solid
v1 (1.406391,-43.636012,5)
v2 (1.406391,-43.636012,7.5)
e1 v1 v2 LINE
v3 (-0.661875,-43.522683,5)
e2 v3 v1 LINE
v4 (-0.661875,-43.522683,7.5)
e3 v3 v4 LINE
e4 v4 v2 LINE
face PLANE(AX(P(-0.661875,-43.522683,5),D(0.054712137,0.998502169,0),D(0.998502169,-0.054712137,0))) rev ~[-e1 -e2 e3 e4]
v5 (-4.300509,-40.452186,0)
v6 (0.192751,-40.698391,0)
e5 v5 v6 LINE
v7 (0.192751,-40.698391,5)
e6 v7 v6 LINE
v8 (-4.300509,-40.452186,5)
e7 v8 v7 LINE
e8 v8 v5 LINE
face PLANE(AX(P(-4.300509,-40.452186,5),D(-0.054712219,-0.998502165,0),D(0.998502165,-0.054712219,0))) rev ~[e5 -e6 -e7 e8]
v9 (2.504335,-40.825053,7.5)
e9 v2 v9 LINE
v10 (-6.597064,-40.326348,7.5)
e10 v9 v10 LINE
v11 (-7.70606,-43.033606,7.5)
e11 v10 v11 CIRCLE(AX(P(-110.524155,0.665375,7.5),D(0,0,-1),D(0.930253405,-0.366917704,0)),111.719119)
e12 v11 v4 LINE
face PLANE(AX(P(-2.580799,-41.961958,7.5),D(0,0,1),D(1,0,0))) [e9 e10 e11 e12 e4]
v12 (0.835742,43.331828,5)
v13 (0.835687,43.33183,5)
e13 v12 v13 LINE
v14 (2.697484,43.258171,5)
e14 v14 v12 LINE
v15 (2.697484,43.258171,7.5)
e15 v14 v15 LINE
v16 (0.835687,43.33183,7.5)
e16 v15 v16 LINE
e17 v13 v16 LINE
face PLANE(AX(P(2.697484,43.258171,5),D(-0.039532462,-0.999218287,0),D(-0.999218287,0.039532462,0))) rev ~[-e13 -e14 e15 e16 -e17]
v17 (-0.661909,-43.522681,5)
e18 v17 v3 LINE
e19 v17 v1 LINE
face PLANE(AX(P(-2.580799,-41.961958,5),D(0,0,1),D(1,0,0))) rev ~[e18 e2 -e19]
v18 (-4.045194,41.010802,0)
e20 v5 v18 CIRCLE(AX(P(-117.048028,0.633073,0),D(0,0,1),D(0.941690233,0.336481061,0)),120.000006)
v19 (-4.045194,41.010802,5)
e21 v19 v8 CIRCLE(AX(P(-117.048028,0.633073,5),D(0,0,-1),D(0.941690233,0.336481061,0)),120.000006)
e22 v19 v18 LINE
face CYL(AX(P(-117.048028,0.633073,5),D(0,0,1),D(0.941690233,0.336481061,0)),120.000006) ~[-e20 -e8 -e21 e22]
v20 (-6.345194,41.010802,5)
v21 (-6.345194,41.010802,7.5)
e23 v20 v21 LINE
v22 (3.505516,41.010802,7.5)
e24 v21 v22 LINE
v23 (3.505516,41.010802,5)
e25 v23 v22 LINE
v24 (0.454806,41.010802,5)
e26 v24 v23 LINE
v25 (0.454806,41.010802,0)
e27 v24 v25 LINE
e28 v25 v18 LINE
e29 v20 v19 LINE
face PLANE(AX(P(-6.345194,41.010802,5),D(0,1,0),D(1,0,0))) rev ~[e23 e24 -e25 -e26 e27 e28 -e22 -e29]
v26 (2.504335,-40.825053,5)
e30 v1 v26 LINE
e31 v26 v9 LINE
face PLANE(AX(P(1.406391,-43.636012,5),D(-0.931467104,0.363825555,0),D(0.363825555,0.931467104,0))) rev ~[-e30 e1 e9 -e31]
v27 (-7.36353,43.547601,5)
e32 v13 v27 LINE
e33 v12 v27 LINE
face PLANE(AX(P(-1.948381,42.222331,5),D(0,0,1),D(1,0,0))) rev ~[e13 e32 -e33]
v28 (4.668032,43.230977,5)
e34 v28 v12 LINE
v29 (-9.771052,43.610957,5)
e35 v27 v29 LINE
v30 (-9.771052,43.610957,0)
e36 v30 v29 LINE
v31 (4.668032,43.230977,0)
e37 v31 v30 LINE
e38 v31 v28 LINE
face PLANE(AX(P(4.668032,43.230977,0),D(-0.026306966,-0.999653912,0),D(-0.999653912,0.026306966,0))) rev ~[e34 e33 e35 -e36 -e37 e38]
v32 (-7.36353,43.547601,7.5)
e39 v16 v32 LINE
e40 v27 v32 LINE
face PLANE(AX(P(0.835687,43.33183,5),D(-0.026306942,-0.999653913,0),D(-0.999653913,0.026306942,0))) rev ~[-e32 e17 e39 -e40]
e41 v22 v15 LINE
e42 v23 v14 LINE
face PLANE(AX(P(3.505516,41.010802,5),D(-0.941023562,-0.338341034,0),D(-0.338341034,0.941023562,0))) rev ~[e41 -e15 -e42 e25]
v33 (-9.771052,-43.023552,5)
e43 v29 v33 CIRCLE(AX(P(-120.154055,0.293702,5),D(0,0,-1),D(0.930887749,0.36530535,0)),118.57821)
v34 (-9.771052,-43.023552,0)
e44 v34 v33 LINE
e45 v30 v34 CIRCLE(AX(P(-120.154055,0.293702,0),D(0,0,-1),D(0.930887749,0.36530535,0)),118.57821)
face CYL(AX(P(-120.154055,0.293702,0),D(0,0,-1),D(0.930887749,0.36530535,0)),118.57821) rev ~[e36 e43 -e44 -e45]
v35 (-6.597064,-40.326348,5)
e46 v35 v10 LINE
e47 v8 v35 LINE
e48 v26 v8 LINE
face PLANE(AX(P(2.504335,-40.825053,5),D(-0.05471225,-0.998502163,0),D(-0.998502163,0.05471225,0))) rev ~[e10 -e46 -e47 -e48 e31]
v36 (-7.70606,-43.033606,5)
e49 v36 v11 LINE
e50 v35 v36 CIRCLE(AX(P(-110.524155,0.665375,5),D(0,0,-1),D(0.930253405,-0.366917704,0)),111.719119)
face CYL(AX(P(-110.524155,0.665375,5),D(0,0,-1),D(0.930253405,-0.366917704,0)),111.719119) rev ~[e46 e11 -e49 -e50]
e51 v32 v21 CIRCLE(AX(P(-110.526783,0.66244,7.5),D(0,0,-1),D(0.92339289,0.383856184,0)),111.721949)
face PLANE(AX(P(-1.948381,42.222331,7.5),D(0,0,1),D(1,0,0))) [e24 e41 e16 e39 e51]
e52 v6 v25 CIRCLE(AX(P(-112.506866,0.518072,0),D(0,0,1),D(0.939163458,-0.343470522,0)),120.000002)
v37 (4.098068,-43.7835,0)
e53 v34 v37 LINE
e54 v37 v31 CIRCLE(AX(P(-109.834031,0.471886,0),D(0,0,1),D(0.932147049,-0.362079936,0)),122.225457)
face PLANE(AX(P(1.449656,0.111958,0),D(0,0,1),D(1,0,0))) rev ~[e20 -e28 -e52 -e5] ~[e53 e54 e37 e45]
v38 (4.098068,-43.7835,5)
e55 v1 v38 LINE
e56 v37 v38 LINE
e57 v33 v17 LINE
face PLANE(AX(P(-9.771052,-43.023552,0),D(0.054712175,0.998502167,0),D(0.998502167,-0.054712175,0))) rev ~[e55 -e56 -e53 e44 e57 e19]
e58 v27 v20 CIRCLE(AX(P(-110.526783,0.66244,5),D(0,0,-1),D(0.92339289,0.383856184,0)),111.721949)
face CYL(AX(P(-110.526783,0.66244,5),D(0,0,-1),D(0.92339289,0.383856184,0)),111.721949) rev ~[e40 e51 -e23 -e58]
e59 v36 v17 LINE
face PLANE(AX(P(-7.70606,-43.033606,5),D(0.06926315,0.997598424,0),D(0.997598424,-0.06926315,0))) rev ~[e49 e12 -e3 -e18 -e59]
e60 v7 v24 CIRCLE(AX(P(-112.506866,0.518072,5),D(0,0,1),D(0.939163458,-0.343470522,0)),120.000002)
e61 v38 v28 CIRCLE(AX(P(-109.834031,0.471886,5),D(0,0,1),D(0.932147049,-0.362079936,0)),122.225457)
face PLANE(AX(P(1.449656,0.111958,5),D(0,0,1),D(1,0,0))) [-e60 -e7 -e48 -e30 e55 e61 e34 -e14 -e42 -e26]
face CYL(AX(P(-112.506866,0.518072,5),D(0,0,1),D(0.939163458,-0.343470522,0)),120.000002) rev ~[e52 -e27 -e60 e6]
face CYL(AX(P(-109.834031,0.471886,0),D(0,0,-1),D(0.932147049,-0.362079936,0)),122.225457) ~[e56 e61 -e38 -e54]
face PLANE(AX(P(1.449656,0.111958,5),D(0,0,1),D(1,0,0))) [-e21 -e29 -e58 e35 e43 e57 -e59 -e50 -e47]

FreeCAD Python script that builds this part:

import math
import FreeCAD as App
import Part
import Sketcher
from FreeCAD import Vector
Q = App.Units.Quantity

doc = App.newDocument("Part")
body = doc.addObject("PartDesign::Body", "Body")

# Sketch on XY plane
sketch1 = doc.addObject("Sketcher::SketchObject", "Sketch")
body.addObject(sketch1)
sketch1.AttachmentSupport = (doc.XY_Plane, [""])
sketch1.MapMode = "FlatFace"
sketch1.addGeometry(Part.ArcOfCircle(Part.Circle(Vector(-120, 0, 0), Vector(0, 0, 1), 119), math.radians(-21), math.radians(21)), False)
sketch1.addGeometry(Part.LineSegment(Vector(-10, -43, 0), Vector(4, -44, 0)), False)
sketch1.addGeometry(Part.ArcOfCircle(Part.Circle(Vector(-110, 0, 0), Vector(0, 0, 1), 122), math.radians(-21), math.radians(20)), False)
sketch1.addGeometry(Part.LineSegment(Vector(5, 43, 0), Vector(-10, 44, 0)), False)
sketch1.addConstraint(Sketcher.Constraint("Coincident", 0, 1, 1, 1))
sketch1.addConstraint(Sketcher.Constraint("Coincident", 1, 2, 2, 1))
sketch1.addConstraint(Sketcher.Constraint("Coincident", 2, 2, 3, 1))
sketch1.addConstraint(Sketcher.Constraint("Coincident", 3, 2, 0, 2))
sketch1.addConstraint(Sketcher.Constraint("Vertical", 0, 1, 3, 2))
sketch1.addConstraint(Sketcher.Constraint("Radius", 0, Q("118.57821 mm")))
sketch1.addConstraint(Sketcher.Constraint("Radius", 2, Q("122.225457 mm")))
sketch1.addConstraint(Sketcher.Constraint("DistanceY", 1, 2, -1, 1, Q("43.7835 mm")))
sketch1.addConstraint(Sketcher.Constraint("DistanceX", 2, 3, 1, 2, Q("113.932099 mm")))
sketch1.addConstraint(Sketcher.Constraint("DistanceX", 2, 3, -1, 1, Q("109.834031 mm")))
sketch1.addConstraint(Sketcher.Constraint("DistanceX", 0, 1, -1, 1, Q("9.771052 mm")))
sketch1.addConstraint(Sketcher.Constraint("DistanceX", -1, 1, 2, 2, Q("4.668032 mm")))
sketch1.addConstraint(Sketcher.Constraint("DistanceY", 0, 1, 2, 2, Q("86.254529 mm")))
sketch1.addConstraint(Sketcher.Constraint("DistanceY", 2, 2, 3, 2, Q("0.37998 mm")))
pad1 = doc.addObject("PartDesign::Pad", "Pad")
body.addObject(pad1)
pad1.Profile = sketch1
pad1.Length = 5

# Sketch on XY plane
sketch2 = doc.addObject("Sketcher::SketchObject", "Sketch001")
body.addObject(sketch2)
sketch2.AttachmentSupport = (doc.XY_Plane, [""])
sketch2.MapMode = "FlatFace"
sketch2.AttachmentOffset = App.Placement(Vector(0, 0, 5), App.Rotation())
sketch2.addGeometry(Part.ArcOfCircle(Part.Circle(Vector(-110.5, 0.7, 0), Vector(0, 0, 1), 111.7), math.radians(21.17), math.radians(22.57)), False)
sketch2.addGeometry(Part.LineSegment(Vector(-6.3, 41, 0), Vector(3.5, 41, 0)), False)
sketch2.addGeometry(Part.LineSegment(Vector(3.5, 41, 0), Vector(2.7, 43.3, 0)), False)
sketch2.addGeometry(Part.LineSegment(Vector(2.7, 43.3, 0), Vector(0.8, 43.3, 0)), False)
sketch2.addGeometry(Part.LineSegment(Vector(0.8, 43.3, 0), Vector(-7.4, 43.5, 0)), False)
sketch2.addGeometry(Part.ArcOfCircle(Part.Circle(Vector(-110.5, 0.7, 0), Vector(0, 0, 1), 111.7), math.radians(-23.03), math.radians(-21.53)), False)
sketch2.addGeometry(Part.LineSegment(Vector(-7.7, -43, 0), Vector(-0.7, -43.5, 0)), False)
sketch2.addGeometry(Part.LineSegment(Vector(-0.7, -43.5, 0), Vector(1.4, -43.6, 0)), False)
sketch2.addGeometry(Part.LineSegment(Vector(1.4, -43.6, 0), Vector(2.5, -40.8, 0)), False)
sketch2.addGeometry(Part.LineSegment(Vector(2.5, -40.8, 0), Vector(-6.6, -40.3, 0)), False)
sketch2.addConstraint(Sketcher.Constraint("Coincident", 0, 1, 1, 1))
sketch2.addConstraint(Sketcher.Constraint("Coincident", 1, 2, 2, 1))
sketch2.addConstraint(Sketcher.Constraint("Coincident", 2, 2, 3, 1))
sketch2.addConstraint(Sketcher.Constraint("Coincident", 3, 2, 4, 1))
sketch2.addConstraint(Sketcher.Constraint("Coincident", 4, 2, 0, 2))
sketch2.addConstraint(Sketcher.Constraint("Coincident", 5, 1, 6, 1))
sketch2.addConstraint(Sketcher.Constraint("Coincident", 6, 2, 7, 1))
sketch2.addConstraint(Sketcher.Constraint("Coincident", 7, 2, 8, 1))
sketch2.addConstraint(Sketcher.Constraint("Coincident", 8, 2, 9, 1))
sketch2.addConstraint(Sketcher.Constraint("Coincident", 9, 2, 5, 2))
sketch2.addConstraint(Sketcher.Constraint("Horizontal", 1))
sketch2.addConstraint(Sketcher.Constraint("Parallel", 7, 9))
sketch2.addConstraint(Sketcher.Constraint("Radius", 0, Q("111.721949 mm")))
sketch2.addConstraint(Sketcher.Constraint("Radius", 5, Q("111.719119 mm")))
sketch2.addConstraint(Sketcher.Constraint("DistanceX", 1, 1, 1, 2, Q("9.85071 mm")))
sketch2.addConstraint(Sketcher.Constraint("DistanceY", -1, 1, 1, 2, Q("41.010802 mm")))
sketch2.addConstraint(Sketcher.Constraint("DistanceY", -1, 1, 4, 2, Q("43.547601 mm")))
sketch2.addConstraint(Sketcher.Constraint("DistanceX", 0, 3, 1, 2, Q("114.032299 mm")))
sketch2.addConstraint(Sketcher.Constraint("DistanceX", 9, 2, 8, 2, Q("9.101399 mm")))
sketch2.addConstraint(Sketcher.Constraint("Distance", 7, Q("2.071369 mm")))
sketch2.addConstraint(Sketcher.Constraint("Distance", 9, Q("9.115052 mm")))
sketch2.addConstraint(Sketcher.Constraint("DistanceY", -1, 1, 2, 2, Q("43.258171 mm")))
sketch2.addConstraint(Sketcher.Constraint("DistanceY", -1, 1, 3, 2, Q("43.33183 mm")))
sketch2.addConstraint(Sketcher.Constraint("DistanceX", 4, 2, -1, 1, Q("7.36353 mm")))
sketch2.addConstraint(Sketcher.Constraint("DistanceX", 5, 1, -1, 1, Q("7.70606 mm")))
sketch2.addConstraint(Sketcher.Constraint("DistanceX", -1, 1, 7, 2, Q("1.406391 mm")))
sketch2.addConstraint(Sketcher.Constraint("DistanceY", 9, 2, -1, 1, Q("40.326348 mm")))
sketch2.addConstraint(Sketcher.Constraint("DistanceX", 0, 3, 5, 3, Q("0.002628 mm")))
sketch2.addConstraint(Sketcher.Constraint("DistanceX", 2, 2, 1, 2, Q("0.808032 mm")))
sketch2.addConstraint(Sketcher.Constraint("DistanceX", 3, 2, 1, 2, Q("2.669829 mm")))
sketch2.addConstraint(Sketcher.Constraint("DistanceY", 7, 2, 8, 2, Q("2.810959 mm")))
sketch2.addConstraint(Sketcher.Constraint("DistanceX", 6, 2, 8, 2, Q("3.16621 mm")))
pad2 = doc.addObject("PartDesign::Pad", "Pad001")
body.addObject(pad2)
pad2.Profile = sketch2
pad2.Length = 2.5

# Sketch on XY plane
sketch3 = doc.addObject("Sketcher::SketchObject", "Sketch002")
body.addObject(sketch3)
sketch3.AttachmentSupport = (doc.XY_Plane, [""])
sketch3.MapMode = "FlatFace"
sketch3.AttachmentOffset = App.Placement(Vector(0, 0, 5), App.Rotation())
sketch3.addGeometry(Part.ArcOfCircle(Part.Circle(Vector(-117, 0.6, 0), Vector(0, 0, 1), 120), math.radians(-20), math.radians(20)), False)
sketch3.addGeometry(Part.LineSegment(Vector(-4.3, -40.5, 0), Vector(0.2, -40.7, 0)), False)
sketch3.addGeometry(Part.ArcOfCircle(Part.Circle(Vector(-112.5, 0.5, 0), Vector(0, 0, 1), 120), math.radians(-20), math.radians(20)), False)
sketch3.addGeometry(Part.LineSegment(Vector(0.5, 41, 0), Vector(-4, 41, 0)), False)
sketch3.addConstraint(Sketcher.Constraint("Coincident", 0, 1, 1, 1))
sketch3.addConstraint(Sketcher.Constraint("Coincident", 1, 2, 2, 1))
sketch3.addConstraint(Sketcher.Constraint("Coincident", 2, 2, 3, 1))
sketch3.addConstraint(Sketcher.Constraint("Coincident", 3, 2, 0, 2))
sketch3.addConstraint(Sketcher.Constraint("Horizontal", 3))
sketch3.addConstraint(Sketcher.Constraint("Radius", 2, Q("120.000002 mm")))
sketch3.addConstraint(Sketcher.Constraint("DistanceX", 3, 2, 3, 1, Q("4.5 mm")))
sketch3.addConstraint(Sketcher.Constraint("Distance", 1, Q("4.5 mm")))
sketch3.addConstraint(Sketcher.Constraint("Radius", 0, Q("120.000006 mm")))
sketch3.addConstraint(Sketcher.Constraint("DistanceY", 2, 3, 0, 3, Q("0.115 mm")))
sketch3.addConstraint(Sketcher.Constraint("DistanceY", -1, 1, 3, 2, Q("41.010802 mm")))
sketch3.addConstraint(Sketcher.Constraint("DistanceX", 0, 1, -1, 1, Q("4.300509 mm")))
sketch3.addConstraint(Sketcher.Constraint("DistanceY", 1, 2, -1, 1, Q("40.698391 mm")))
sketch3.addConstraint(Sketcher.Constraint("DistanceY", 0, 1, 2, 3, Q("40.970258 mm")))
pocket1 = doc.addObject("PartDesign::Pocket", "Pocket")
body.addObject(pocket1)
pocket1.Profile = sketch3
pocket1.Length = 25

doc.recompute()
